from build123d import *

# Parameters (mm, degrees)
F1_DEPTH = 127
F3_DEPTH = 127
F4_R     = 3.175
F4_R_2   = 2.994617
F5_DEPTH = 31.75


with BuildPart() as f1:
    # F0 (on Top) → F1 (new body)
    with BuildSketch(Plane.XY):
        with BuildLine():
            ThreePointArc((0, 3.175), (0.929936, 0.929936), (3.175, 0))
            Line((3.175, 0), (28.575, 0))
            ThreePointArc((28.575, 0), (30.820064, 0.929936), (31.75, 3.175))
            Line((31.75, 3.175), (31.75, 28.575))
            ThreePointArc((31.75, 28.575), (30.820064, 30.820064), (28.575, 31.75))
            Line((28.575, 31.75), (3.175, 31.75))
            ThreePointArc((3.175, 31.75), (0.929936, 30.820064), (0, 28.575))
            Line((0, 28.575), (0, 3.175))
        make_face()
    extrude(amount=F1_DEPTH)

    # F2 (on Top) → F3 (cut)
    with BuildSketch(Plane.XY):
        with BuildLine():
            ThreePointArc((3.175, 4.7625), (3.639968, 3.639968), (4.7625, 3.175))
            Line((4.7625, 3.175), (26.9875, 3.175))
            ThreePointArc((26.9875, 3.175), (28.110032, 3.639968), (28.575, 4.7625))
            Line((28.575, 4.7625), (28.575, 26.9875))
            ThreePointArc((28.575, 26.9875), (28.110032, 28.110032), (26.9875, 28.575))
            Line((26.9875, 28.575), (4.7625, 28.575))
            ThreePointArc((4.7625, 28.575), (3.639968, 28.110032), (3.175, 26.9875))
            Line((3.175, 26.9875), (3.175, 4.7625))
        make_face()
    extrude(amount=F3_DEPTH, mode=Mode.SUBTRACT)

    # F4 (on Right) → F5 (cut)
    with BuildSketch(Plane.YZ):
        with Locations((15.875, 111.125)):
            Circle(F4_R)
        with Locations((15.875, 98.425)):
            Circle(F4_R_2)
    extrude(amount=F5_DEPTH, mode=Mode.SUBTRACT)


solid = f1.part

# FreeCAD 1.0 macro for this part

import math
import FreeCAD as App
import Part
import Sketcher
from FreeCAD import Vector
Q = App.Units.Quantity

doc = App.newDocument("Part")
body = doc.addObject("PartDesign::Body", "Body")

# Sketch on XY plane
sketch1 = doc.addObject("Sketcher::SketchObject", "Sketch")
body.addObject(sketch1)
sketch1.AttachmentSupport = (doc.XY_Plane, [""])
sketch1.MapMode = "FlatFace"
sketch1.addGeometry(Part.ArcOfCircle(Part.Circle(Vector(3.2, 3.2, 0), Vector(0, 0, 1), 3.2), math.radians(-180), math.radians(-90)), False)
sketch1.addGeometry(Part.LineSegment(Vector(3.2, 0, 0), Vector(28.6, 0, 0)), False)
sketch1.addGeometry(Part.ArcOfCircle(Part.Circle(Vector(28.6, 3.2, 0), Vector(0, 0, 1), 3.2), math.radians(-90), math.radians(0)), False)
sketch1.addGeometry(Part.LineSegment(Vector(31.8, 3.2, 0), Vector(31.8, 28.6, 0)), False)
sketch1.addGeometry(Part.ArcOfCircle(Part.Circle(Vector(28.6, 28.6, 0), Vector(0, 0, 1), 3.2), math.radians(0), math.radians(90)), False)
sketch1.addGeometry(Part.LineSegment(Vector(28.6, 31.8, 0), Vector(3.2, 31.8, 0)), False)
sketch1.addGeometry(Part.ArcOfCircle(Part.Circle(Vector(3.2, 28.6, 0), Vector(0, 0, 1), 3.2), math.radians(90), math.radians(180)), False)
sketch1.addGeometry(Part.LineSegment(Vector(0, 28.6, 0), Vector(0, 3.2, 0)), False)
sketch1.addConstraint(Sketcher.Constraint("Tangent", 0, 2, 1, 1))
sketch1.addConstraint(Sketcher.Constraint("Tangent", 1, 2, 2, 1))
sketch1.addConstraint(Sketcher.Constraint("Tangent", 2, 2, 3, 1))
sketch1.addConstraint(Sketcher.Constraint("Tangent", 3, 2, 4, 1))
sketch1.addConstraint(Sketcher.Constraint("Tangent", 4, 2, 5, 1))
sketch1.addConstraint(Sketcher.Constraint("Tangent", 5, 2, 6, 1))
sketch1.addConstraint(Sketcher.Constraint("Tangent", 6, 2, 7, 1))
sketch1.addConstraint(Sketcher.Constraint("Tangent", 7, 2, 0, 1))
sketch1.addConstraint(Sketcher.Constraint("Horizontal", 1))
sketch1.addConstraint(Sketcher.Constraint("Vertical", 3))
sketch1.addConstraint(Sketcher.Constraint("Horizontal", 5))
sketch1.addConstraint(Sketcher.Constraint("Vertical", 7))
sketch1.addConstraint(Sketcher.Constraint("Equal", 0, 2))
sketch1.addConstraint(Sketcher.Constraint("Equal", 2, 4))
sketch1.addConstraint(Sketcher.Constraint("Equal", 4, 6))
sketch1.addConstraint(Sketcher.Constraint("PointOnObject", 0, 2, -1))
sketch1.addConstraint(Sketcher.Constraint("PointOnObject", 6, 2, -2))
sketch1.addConstraint(Sketcher.Constraint("Equal", 5, 3))
sketch1.addConstraint(Sketcher.Constraint("DistanceX", 1, 1, 1, 2, Q("1 in")))
sketch1.addConstraint(Sketcher.Constraint("Radius", 0, Q("0.125 in")))
pad1 = doc.addObject("PartDesign::Pad", "Pad")
body.addObject(pad1)
pad1.Profile = sketch1
pad1.Length = Q("5 in")

# Sketch on XY plane
sketch2 = doc.addObject("Sketcher::SketchObject", "Sketch001")
body.addObject(sketch2)
sketch2.AttachmentSupport = (doc.XY_Plane, [""])
sketch2.MapMode = "FlatFace"
sketch2.addGeometry(Part.ArcOfCircle(Part.Circle(Vector(4.8, 4.8, 0), Vector(0, 0, 1), 1.6), math.radians(-180), math.radians(-90)), False)
sketch2.addGeometry(Part.LineSegment(Vector(4.8, 3.2, 0), Vector(27, 3.2, 0)), False)
sketch2.addGeometry(Part.ArcOfCircle(Part.Circle(Vector(27, 4.8, 0), Vector(0, 0, 1), 1.6), math.radians(-90), math.radians(0)), False)
sketch2.addGeometry(Part.LineSegment(Vector(28.6, 4.8, 0), Vector(28.6, 27, 0)), False)
sketch2.addGeometry(Part.ArcOfCircle(Part.Circle(Vector(27, 27, 0), Vector(0, 0, 1), 1.6), math.radians(0), math.radians(90)), False)
sketch2.addGeometry(Part.LineSegment(Vector(27, 28.6, 0), Vector(4.8, 28.6, 0)), False)
sketch2.addGeometry(Part.ArcOfCircle(Part.Circle(Vector(4.8, 27, 0), Vector(0, 0, 1), 1.6), math.radians(90), math.radians(180)), False)
sketch2.addGeometry(Part.LineSegment(Vector(3.2, 27, 0), Vector(3.2, 4.8, 0)), False)
sketch2.addConstraint(Sketcher.Constraint("Tangent", 0, 2, 1, 1))
sketch2.addConstraint(Sketcher.Constraint("Tangent", 1, 2, 2, 1))
sketch2.addConstraint(Sketcher.Constraint("Tangent", 2, 2, 3, 1))
sketch2.addConstraint(Sketcher.Constraint("Tangent", 3, 2, 4, 1))
sketch2.addConstraint(Sketcher.Constraint("Tangent", 4, 2, 5, 1))
sketch2.addConstraint(Sketcher.Constraint("Tangent", 5, 2, 6, 1))
sketch2.addConstraint(Sketcher.Constraint("Tangent", 6, 2, 7, 1))
sketch2.addConstraint(Sketcher.Constraint("Tangent", 7, 2, 0, 1))
sketch2.addConstraint(Sketcher.Constraint("Horizontal", 1))
sketch2.addConstraint(Sketcher.Constraint("Vertical", 3))
sketch2.addConstraint(Sketcher.Constraint("Horizontal", 5))
sketch2.addConstraint(Sketcher.Constraint("Vertical", 7))
sketch2.addConstraint(Sketcher.Constraint("Equal", 0, 2))
sketch2.addConstraint(Sketcher.Constraint("Equal", 2, 4))
sketch2.addConstraint(Sketcher.Constraint("Equal", 4, 6))
sketch2.addConstraint(Sketcher.Constraint("Equal", 5, 3))
sketch2.addConstraint(Sketcher.Constraint("Radius", 0, Q("0.0625 in")))
sketch2.addConstraint(Sketcher.Constraint("DistanceX", 1, 1, 1, 2, Q("0.875 in")))
sketch2.addConstraint(Sketcher.Constraint("DistanceX", -1, 1, 0, 3, Q("0.1875 in")))
sketch2.addConstraint(Sketcher.Constraint("DistanceY", -1, 1, 0, 3, Q("0.1875 in")))
pocket1 = doc.addObject("PartDesign::Pocket", "Pocket")
body.addObject(pocket1)
pocket1.Profile = sketch2
pocket1.Length = Q("5 in")
pocket1.Reversed = True

# Sketch on YZ plane
sketch3 = doc.addObject("Sketcher::SketchObject", "Sketch002")
body.addObject(sketch3)
sketch3.AttachmentSupport = (doc.YZ_Plane, [""])
sketch3.MapMode = "FlatFace"
sketch3.addGeometry(Part.Circle(Vector(15.9, 111.1, 0), Vector(0, 0, 1), 3.2), False)
sketch3.addGeometry(Part.Circle(Vector(15.9, 98.4, 0), Vector(0, 0, 1), 3), False)
sketch3.addConstraint(Sketcher.Constraint("Vertical", 0, 3, 1, 3))
sketch3.addConstraint(Sketcher.Constraint("Diameter", 0, Q("0.25 in")))
sketch3.addConstraint(Sketcher.Constraint("DistanceY", 1, 3, 0, 3, Q("0.5 in")))
sketch3.addConstraint(Sketcher.Constraint("DistanceX", -1, 1, 0, 3, Q("0.625 in")))
sketch3.addConstraint(Sketcher.Constraint("DistanceY", -1, 1, 0, 3, Q("4.375 in")))
sketch3.addConstraint(Sketcher.Constraint("Diameter", 1, 5.989234))
pocket2 = doc.addObject("PartDesign::Pocket", "Pocket001")
body.addObject(pocket2)
pocket2.Profile = sketch3
pocket2.Length = Q("1.25 in")
pocket2.Reversed = True

doc.recompute()
